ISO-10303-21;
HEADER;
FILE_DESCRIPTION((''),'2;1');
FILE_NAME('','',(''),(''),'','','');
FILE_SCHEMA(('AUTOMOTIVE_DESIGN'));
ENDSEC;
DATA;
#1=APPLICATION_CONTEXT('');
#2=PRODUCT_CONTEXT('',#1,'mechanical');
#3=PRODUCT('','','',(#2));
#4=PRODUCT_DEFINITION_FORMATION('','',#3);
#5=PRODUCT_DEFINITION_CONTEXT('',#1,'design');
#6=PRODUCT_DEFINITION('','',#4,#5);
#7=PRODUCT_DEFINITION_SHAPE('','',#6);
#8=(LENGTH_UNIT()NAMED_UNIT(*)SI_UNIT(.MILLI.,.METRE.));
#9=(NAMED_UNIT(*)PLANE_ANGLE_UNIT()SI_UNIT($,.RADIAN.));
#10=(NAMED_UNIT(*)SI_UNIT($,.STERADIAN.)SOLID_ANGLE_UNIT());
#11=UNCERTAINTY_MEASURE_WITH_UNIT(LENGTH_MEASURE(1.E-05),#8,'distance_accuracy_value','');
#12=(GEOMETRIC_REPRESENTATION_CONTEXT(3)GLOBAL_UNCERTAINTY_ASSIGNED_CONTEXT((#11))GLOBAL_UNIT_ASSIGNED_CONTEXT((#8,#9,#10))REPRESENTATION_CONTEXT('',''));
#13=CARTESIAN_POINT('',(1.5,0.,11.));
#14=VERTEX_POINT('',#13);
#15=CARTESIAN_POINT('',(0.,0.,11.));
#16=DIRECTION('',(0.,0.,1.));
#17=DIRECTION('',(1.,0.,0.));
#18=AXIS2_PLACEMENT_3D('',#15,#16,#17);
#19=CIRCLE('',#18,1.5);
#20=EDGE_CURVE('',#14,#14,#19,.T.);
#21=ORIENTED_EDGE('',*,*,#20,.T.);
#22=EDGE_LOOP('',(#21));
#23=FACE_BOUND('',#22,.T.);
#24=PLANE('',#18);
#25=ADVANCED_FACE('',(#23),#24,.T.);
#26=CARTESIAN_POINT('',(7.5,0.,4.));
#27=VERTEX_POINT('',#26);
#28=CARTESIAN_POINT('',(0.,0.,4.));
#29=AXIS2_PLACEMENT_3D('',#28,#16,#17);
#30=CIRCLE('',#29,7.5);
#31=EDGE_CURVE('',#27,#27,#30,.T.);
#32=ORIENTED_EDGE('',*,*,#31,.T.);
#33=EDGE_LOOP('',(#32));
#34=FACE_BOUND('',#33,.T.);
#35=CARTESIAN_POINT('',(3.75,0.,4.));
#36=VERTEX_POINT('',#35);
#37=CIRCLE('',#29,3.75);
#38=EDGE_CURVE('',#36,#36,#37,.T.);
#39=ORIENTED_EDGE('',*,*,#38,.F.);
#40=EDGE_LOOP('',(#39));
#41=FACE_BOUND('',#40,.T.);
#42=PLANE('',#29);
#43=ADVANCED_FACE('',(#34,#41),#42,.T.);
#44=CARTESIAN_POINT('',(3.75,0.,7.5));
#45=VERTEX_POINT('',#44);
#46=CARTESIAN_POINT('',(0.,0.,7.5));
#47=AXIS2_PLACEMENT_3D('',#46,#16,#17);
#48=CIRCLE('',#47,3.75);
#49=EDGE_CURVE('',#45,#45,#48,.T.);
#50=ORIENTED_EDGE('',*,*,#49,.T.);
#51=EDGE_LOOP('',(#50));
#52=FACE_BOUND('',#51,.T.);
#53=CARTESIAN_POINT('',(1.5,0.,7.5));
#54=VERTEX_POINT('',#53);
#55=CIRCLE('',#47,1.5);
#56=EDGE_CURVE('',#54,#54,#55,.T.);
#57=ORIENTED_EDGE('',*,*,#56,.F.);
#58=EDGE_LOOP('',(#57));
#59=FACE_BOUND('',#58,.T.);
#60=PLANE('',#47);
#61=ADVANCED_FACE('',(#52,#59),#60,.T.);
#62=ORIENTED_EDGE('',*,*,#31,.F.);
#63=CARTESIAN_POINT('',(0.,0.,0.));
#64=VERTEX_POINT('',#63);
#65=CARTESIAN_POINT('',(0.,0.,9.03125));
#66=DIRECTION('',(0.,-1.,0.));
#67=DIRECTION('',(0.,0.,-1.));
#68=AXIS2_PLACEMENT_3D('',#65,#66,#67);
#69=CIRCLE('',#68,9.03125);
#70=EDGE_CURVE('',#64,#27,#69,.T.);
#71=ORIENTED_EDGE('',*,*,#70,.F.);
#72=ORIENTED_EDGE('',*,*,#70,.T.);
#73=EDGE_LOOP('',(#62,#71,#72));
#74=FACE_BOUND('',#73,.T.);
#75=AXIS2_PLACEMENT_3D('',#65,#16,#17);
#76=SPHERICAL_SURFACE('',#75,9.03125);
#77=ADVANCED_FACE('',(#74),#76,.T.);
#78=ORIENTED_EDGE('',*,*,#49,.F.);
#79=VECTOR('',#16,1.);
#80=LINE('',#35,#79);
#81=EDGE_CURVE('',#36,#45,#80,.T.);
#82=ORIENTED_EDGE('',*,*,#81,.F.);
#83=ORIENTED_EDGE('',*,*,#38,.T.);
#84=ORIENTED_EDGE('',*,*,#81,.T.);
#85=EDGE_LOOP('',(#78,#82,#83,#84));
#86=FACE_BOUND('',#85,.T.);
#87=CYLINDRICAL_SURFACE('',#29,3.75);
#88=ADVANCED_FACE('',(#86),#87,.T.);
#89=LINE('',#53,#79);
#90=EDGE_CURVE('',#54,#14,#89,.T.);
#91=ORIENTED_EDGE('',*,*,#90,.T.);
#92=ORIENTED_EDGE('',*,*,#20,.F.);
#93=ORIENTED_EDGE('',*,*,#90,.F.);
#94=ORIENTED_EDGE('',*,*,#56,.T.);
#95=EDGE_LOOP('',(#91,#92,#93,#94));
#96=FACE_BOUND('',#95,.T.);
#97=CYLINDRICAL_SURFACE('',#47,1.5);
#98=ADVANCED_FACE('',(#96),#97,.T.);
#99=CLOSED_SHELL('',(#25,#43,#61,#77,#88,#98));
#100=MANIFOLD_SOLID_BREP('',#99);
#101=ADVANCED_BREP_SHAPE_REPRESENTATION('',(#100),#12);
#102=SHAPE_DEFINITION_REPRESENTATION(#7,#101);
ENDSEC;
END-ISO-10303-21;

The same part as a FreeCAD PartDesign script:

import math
import FreeCAD as App
import Part
import Sketcher
from FreeCAD import Vector
Q = App.Units.Quantity

doc = App.newDocument("Part")
body = doc.addObject("PartDesign::Body", "Body")

# Sketch on XZ plane
sketch1 = body.newObject("Sketcher::SketchObject", "Sketch")
sketch1.AttachmentSupport = (doc.getObject("XZ_Plane"), [""])
sketch1.MapMode = "FlatFace"
sketch1.addGeometry(Part.LineSegment(Vector(0, 11, 0), Vector(0, 0, 0)), False)
sketch1.addGeometry(Part.ArcOfCircle(Part.Circle(Vector(0, 9.03125, 0), Vector(0, 0, 1), 9.03125), math.radians(-90), math.radians(-33.855026)), False)
sketch1.addGeometry(Part.LineSegment(Vector(7.5, 4, 0), Vector(3.75, 4, 0)), False)
sketch1.addGeometry(Part.LineSegment(Vector(3.75, 4, 0), Vector(3.75, 7.5, 0)), False)
sketch1.addGeometry(Part.LineSegment(Vector(3.75, 7.5, 0), Vector(1.5, 7.5, 0)), False)
sketch1.addGeometry(Part.LineSegment(Vector(1.5, 7.5, 0), Vector(1.5, 11, 0)), False)
sketch1.addGeometry(Part.LineSegment(Vector(1.5, 11, 0), Vector(0, 11, 0)), False)
sketch1.addConstraint(Sketcher.Constraint("Coincident", 0, 2, 1, 1))
sketch1.addConstraint(Sketcher.Constraint("Coincident", 1, 2, 2, 1))
sketch1.addConstraint(Sketcher.Constraint("Coincident", 2, 2, 3, 1))
sketch1.addConstraint(Sketcher.Constraint("Coincident", 3, 2, 4, 1))
sketch1.addConstraint(Sketcher.Constraint("Coincident", 4, 2, 5, 1))
sketch1.addConstraint(Sketcher.Constraint("Coincident", 5, 2, 6, 1))
sketch1.addConstraint(Sketcher.Constraint("Coincident", 6, 2, 0, 1))
sketch1.addConstraint(Sketcher.Constraint("Vertical", 0))
sketch1.addConstraint(Sketcher.Constraint("Horizontal", 2))
sketch1.addConstraint(Sketcher.Constraint("Vertical", 3))
sketch1.addConstraint(Sketcher.Constraint("Horizontal", 4))
sketch1.addConstraint(Sketcher.Constraint("Vertical", 5))
sketch1.addConstraint(Sketcher.Constraint("Horizontal", 6))
sketch1.addConstraint(Sketcher.Constraint("Coincident", 0, 2, -1, 1))
sketch1.addConstraint(Sketcher.Constraint("PointOnObject", 1, 3, -2))
sketch1.addConstraint(Sketcher.Constraint("Equal", 3, 5))
sketch1.addConstraint(Sketcher.Constraint("DistanceY", 0, 2, 0, 1, Q("11 mm")))
sketch1.addConstraint(Sketcher.Constraint("DistanceX", 6, 2, 6, 1, Q("1.5 mm")))
sketch1.addConstraint(Sketcher.Constraint("DistanceY", 3, 1, 3, 2, Q("3.5 mm")))
sketch1.addConstraint(Sketcher.Constraint("DistanceX", 4, 2, 1, 2, Q("6 mm")))
sketch1.addConstraint(Sketcher.Constraint("DistanceX", 2, 2, 2, 1, Q("3.75 mm")))
revolution = body.newObject("PartDesign::Revolution", "Revolution")
revolution.Profile = sketch1
revolution.ReferenceAxis = (sketch1, ["V_Axis"])
revolution.Angle = 360

doc.recompute()
